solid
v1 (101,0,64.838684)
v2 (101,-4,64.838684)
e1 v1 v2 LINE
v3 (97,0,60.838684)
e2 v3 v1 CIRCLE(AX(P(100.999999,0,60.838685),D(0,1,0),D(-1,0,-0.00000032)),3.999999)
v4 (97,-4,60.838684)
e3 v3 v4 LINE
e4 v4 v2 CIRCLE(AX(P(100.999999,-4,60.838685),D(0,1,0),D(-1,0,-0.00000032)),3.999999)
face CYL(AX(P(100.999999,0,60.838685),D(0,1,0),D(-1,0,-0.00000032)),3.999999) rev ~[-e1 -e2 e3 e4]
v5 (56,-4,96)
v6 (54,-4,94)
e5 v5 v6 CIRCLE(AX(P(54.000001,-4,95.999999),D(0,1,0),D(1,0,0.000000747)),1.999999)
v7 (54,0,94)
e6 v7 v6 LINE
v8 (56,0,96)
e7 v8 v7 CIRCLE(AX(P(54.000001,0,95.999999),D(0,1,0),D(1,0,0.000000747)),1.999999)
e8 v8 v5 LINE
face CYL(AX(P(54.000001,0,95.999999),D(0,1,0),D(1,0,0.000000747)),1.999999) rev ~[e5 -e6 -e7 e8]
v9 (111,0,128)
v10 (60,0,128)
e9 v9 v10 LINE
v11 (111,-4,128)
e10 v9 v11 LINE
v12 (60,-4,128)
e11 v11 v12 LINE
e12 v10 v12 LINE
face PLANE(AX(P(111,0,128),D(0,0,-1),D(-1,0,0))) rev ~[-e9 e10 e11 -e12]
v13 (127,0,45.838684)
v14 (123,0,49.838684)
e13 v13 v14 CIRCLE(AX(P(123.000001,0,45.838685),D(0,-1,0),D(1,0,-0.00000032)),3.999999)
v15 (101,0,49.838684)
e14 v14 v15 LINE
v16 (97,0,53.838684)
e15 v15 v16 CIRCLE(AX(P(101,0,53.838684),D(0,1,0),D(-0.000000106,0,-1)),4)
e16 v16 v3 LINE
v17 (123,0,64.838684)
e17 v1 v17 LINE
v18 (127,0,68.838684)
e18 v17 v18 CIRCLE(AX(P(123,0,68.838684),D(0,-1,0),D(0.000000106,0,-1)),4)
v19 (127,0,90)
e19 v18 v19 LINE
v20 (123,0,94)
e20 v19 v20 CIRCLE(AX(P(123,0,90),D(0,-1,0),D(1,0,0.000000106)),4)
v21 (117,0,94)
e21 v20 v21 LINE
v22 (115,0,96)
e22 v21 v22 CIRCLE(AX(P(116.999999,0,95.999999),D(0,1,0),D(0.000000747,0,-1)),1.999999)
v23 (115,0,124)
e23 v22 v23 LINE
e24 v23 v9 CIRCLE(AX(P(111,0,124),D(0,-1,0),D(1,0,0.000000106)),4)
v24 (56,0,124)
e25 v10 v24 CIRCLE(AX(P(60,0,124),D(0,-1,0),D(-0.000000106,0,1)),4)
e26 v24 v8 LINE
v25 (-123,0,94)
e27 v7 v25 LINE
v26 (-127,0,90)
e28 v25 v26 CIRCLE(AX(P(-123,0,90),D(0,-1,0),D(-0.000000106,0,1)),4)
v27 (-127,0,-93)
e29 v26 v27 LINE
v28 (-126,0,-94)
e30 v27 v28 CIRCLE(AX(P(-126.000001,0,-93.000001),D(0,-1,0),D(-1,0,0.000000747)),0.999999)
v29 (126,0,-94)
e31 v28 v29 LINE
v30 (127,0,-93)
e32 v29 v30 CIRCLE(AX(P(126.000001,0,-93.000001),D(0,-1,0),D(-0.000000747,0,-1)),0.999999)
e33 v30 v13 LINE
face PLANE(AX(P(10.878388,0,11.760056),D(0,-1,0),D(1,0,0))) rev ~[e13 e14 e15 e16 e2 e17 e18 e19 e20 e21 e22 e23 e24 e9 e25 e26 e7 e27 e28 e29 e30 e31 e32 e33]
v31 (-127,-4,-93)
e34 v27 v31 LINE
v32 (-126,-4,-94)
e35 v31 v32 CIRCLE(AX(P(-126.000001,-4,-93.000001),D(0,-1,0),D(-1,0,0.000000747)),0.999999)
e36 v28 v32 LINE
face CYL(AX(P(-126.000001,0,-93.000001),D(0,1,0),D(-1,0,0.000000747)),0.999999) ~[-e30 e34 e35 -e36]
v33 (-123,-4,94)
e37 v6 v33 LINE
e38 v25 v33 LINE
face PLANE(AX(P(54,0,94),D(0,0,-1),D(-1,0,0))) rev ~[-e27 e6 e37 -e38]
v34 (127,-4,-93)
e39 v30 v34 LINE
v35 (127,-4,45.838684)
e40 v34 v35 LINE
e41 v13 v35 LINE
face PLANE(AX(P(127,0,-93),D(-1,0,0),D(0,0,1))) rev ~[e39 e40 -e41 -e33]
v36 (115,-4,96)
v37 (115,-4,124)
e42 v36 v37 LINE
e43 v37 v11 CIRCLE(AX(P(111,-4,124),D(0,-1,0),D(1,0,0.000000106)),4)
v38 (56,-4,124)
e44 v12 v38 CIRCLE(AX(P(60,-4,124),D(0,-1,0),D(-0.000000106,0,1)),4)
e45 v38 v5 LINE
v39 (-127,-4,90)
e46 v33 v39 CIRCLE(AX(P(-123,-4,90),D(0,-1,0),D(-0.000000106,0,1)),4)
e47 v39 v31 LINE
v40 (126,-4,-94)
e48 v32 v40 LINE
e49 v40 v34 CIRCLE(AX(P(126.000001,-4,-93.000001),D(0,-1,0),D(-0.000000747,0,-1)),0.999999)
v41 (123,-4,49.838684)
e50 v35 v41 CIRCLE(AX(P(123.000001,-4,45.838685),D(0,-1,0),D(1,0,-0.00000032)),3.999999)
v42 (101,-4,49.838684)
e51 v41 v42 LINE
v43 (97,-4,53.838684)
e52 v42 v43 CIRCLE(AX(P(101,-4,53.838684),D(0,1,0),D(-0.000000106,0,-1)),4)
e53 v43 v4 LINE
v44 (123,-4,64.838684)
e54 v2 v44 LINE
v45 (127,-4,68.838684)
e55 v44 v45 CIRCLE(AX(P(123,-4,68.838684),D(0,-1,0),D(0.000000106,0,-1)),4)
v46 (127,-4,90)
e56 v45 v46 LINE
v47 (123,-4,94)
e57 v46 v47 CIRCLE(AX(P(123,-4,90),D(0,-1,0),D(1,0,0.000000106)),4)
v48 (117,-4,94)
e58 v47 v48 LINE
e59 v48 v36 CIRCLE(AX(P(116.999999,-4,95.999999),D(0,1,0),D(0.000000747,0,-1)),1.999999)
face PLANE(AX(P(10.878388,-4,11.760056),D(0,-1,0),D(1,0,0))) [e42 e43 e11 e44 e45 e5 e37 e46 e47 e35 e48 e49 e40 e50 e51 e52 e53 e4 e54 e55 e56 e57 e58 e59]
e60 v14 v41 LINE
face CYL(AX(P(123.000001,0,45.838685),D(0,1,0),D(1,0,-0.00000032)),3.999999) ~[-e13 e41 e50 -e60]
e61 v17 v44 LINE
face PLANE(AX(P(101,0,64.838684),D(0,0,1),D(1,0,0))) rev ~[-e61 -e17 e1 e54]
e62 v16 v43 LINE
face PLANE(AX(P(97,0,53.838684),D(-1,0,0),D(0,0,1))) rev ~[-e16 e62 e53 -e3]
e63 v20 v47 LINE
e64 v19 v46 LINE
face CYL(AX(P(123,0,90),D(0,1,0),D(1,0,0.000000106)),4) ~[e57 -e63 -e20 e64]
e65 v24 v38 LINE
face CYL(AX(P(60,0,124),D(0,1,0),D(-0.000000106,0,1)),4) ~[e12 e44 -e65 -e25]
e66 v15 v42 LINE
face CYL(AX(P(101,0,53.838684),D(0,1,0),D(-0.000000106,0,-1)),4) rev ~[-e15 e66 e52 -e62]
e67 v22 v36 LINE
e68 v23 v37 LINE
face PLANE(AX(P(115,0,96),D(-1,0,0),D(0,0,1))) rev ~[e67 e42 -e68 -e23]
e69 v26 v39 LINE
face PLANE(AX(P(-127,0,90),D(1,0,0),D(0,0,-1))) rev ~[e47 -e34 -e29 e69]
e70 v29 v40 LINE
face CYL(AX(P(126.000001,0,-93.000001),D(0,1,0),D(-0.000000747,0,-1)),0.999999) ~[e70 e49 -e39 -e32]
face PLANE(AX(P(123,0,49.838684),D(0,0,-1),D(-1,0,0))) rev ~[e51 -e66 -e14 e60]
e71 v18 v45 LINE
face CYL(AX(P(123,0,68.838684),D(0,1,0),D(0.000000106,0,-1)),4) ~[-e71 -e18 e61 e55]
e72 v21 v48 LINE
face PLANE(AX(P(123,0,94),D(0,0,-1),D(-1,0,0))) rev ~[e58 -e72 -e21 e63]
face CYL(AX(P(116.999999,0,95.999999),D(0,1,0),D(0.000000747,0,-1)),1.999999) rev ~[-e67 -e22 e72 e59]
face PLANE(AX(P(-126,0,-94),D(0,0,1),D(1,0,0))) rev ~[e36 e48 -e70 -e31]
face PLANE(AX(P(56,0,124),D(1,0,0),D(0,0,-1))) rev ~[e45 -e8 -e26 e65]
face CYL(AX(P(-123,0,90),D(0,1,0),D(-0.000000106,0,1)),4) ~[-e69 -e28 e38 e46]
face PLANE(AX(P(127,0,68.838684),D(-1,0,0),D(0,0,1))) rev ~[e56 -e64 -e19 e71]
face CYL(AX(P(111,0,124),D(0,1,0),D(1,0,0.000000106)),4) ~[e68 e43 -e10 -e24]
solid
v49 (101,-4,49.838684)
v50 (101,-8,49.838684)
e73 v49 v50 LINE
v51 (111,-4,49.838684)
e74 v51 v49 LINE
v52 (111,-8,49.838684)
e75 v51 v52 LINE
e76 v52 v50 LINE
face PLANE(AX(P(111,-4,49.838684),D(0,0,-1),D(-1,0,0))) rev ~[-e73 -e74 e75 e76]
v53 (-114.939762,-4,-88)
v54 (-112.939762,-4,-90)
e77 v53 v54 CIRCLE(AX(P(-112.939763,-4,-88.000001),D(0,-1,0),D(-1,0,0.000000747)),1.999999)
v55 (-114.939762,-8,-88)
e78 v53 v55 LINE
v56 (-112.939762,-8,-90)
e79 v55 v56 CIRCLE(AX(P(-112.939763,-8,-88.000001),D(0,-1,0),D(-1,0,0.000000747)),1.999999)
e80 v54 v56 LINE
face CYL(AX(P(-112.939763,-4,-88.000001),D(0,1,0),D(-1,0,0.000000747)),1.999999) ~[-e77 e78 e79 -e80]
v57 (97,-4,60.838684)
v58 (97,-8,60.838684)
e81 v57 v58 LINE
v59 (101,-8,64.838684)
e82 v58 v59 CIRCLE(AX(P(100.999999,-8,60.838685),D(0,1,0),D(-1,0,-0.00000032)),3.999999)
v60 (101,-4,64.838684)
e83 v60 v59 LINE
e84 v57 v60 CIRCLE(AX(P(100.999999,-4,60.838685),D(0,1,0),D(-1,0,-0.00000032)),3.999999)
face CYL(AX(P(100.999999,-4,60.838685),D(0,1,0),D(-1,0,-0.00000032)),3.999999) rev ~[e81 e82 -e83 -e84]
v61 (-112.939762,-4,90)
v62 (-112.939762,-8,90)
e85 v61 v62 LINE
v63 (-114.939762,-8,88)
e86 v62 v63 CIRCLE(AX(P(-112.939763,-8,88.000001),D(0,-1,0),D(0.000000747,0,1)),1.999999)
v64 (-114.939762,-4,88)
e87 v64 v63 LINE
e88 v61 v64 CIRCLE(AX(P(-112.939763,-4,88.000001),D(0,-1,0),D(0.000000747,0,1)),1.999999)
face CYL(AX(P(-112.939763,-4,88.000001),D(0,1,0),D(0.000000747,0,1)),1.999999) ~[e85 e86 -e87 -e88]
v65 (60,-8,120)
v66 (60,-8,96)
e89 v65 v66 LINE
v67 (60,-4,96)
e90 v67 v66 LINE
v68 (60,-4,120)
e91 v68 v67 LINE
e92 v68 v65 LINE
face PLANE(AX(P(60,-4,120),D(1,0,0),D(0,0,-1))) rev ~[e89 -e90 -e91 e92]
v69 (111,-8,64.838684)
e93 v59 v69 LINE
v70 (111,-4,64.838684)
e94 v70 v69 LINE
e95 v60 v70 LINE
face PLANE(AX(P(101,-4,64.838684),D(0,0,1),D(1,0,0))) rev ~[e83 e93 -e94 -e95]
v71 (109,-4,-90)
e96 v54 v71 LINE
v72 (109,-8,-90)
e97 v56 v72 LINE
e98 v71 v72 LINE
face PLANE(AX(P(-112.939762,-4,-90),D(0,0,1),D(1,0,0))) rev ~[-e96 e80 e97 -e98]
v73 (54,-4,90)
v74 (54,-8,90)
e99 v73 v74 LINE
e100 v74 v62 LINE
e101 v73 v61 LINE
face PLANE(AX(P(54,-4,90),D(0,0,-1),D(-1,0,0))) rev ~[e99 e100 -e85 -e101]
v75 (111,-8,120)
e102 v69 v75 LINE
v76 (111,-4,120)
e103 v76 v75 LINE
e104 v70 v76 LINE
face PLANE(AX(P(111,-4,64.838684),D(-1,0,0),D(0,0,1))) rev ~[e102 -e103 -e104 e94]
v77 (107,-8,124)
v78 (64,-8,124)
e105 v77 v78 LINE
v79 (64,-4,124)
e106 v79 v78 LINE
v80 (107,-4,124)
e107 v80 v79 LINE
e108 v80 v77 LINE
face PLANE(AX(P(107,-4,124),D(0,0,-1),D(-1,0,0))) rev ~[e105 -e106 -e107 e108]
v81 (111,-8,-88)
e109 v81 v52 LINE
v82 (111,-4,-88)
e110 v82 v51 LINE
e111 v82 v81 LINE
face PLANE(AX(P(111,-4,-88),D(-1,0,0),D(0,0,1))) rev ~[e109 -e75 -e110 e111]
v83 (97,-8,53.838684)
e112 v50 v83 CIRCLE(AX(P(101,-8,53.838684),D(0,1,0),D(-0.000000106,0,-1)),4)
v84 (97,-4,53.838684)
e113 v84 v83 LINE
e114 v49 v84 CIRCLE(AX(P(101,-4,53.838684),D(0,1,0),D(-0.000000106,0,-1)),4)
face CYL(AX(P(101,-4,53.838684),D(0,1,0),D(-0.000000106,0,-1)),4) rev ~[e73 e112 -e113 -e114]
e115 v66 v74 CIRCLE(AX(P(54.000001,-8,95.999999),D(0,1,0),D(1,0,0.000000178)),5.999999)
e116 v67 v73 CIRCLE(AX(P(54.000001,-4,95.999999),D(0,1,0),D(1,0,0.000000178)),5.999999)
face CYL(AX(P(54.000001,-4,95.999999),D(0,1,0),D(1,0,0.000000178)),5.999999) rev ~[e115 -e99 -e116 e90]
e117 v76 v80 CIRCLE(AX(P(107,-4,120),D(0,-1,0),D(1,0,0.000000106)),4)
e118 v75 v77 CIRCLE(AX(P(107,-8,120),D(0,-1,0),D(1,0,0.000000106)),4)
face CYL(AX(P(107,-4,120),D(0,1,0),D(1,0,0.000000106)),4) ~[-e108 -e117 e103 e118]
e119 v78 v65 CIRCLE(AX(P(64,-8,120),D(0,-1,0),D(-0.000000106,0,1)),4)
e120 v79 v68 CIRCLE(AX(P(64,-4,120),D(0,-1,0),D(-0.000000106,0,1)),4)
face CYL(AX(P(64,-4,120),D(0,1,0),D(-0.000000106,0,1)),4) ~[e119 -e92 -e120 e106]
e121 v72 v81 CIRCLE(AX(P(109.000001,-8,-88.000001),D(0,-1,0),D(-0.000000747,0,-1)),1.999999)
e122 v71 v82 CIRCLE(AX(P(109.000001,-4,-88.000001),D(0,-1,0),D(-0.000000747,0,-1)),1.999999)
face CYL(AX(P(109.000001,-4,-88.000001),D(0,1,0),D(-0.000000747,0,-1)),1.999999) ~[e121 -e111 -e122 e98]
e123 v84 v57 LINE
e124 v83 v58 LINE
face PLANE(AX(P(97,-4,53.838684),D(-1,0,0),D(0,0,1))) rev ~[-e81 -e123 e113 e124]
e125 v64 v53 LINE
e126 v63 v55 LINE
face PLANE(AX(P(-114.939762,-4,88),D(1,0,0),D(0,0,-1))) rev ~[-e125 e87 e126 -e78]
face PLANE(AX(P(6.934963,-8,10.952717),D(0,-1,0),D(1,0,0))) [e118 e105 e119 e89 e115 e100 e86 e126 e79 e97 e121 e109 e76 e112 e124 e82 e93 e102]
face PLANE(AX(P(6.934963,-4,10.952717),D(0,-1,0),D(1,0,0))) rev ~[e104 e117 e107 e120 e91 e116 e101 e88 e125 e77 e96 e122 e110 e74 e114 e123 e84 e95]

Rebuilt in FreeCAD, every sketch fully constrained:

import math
import FreeCAD as App
import Part
import Sketcher
from FreeCAD import Vector

doc = App.newDocument("Part")
params = doc.addObject("Spreadsheet::Sheet", "Params")
for row, (alias, value) in enumerate([
    ("sketch1_radius", "4 mm"),
    ("sketch1_radius2", "1.999999 mm"),
    ("sketch1_radius3", "0.999999 mm"),
    ("sketch1_width", "6 mm"),
    ("sketch1_width2", "51 mm"),
    ("pad1_length", "4 mm"),
    ("sketch2_radius", "5.999999 mm"),
    ("sketch2_radius2", "1.999999 mm"),
    ("sketch2_radius3", "4 mm"),
    ("sketch2_width", "10 mm"),
    ("sketch2_width2", "43 mm"),
    ("pad2_length", "4 mm"),
], start=1):
    params.set(f"A{row}", alias)
    params.set(f"B{row}", "=" + value)
    params.setAlias(f"B{row}", alias)

body = doc.addObject("PartDesign::Body", "Body")

# Sketch on XZ plane
sketch1 = doc.addObject("Sketcher::SketchObject", "Sketch")
body.addObject(sketch1)
sketch1.AttachmentSupport = (doc.XZ_Plane, [""])
sketch1.MapMode = "FlatFace"
sketch1.addGeometry([
    Part.ArcOfCircle(Part.Circle(Vector(123, 90, 0), Vector(0, 0, 1), 4), math.radians(0), math.radians(90)),  # 0
    Part.LineSegment(Vector(123, 94, 0), Vector(117, 94, 0)),  # 1
    Part.ArcOfCircle(Part.Circle(Vector(117, 96, 0), Vector(0, 0, 1), 2), math.radians(180), math.radians(270)),  # 2
    Part.LineSegment(Vector(115, 96, 0), Vector(115, 124, 0)),  # 3
    Part.ArcOfCircle(Part.Circle(Vector(111, 124, 0), Vector(0, 0, 1), 4), math.radians(0), math.radians(90)),  # 4
    Part.LineSegment(Vector(111, 128, 0), Vector(60, 128, 0)),  # 5
    Part.ArcOfCircle(Part.Circle(Vector(60, 124, 0), Vector(0, 0, 1), 4), math.radians(90), math.radians(180)),  # 6
    Part.LineSegment(Vector(56, 124, 0), Vector(56, 96, 0)),  # 7
    Part.ArcOfCircle(Part.Circle(Vector(54, 96, 0), Vector(0, 0, 1), 2), math.radians(-90), math.radians(0)),  # 8
    Part.LineSegment(Vector(54, 94, 0), Vector(-123, 94, 0)),  # 9
    Part.ArcOfCircle(Part.Circle(Vector(-123, 90, 0), Vector(0, 0, 1), 4), math.radians(90), math.radians(180)),  # 10
    Part.LineSegment(Vector(-127, 90, 0), Vector(-127, -93, 0)),  # 11
    Part.ArcOfCircle(Part.Circle(Vector(-126, -93, 0), Vector(0, 0, 1), 1), math.radians(180), math.radians(270)),  # 12
    Part.LineSegment(Vector(-126, -94, 0), Vector(126, -94, 0)),  # 13
    Part.ArcOfCircle(Part.Circle(Vector(126, -93, 0), Vector(0, 0, 1), 1), math.radians(-90), math.radians(0)),  # 14
    Part.LineSegment(Vector(127, -93, 0), Vector(127, 45.8, 0)),  # 15
    Part.ArcOfCircle(Part.Circle(Vector(123, 45.8, 0), Vector(0, 0, 1), 4), math.radians(0), math.radians(90)),  # 16
    Part.LineSegment(Vector(123, 49.8, 0), Vector(101, 49.8, 0)),  # 17
    Part.ArcOfCircle(Part.Circle(Vector(101, 53.8, 0), Vector(0, 0, 1), 4), math.radians(-180), math.radians(-90)),  # 18
    Part.LineSegment(Vector(97, 53.8, 0), Vector(97, 60.8, 0)),  # 19
    Part.ArcOfCircle(Part.Circle(Vector(101, 60.8, 0), Vector(0, 0, 1), 4), math.radians(90), math.radians(180)),  # 20
    Part.LineSegment(Vector(101, 64.8, 0), Vector(123, 64.8, 0)),  # 21
    Part.ArcOfCircle(Part.Circle(Vector(123, 68.8, 0), Vector(0, 0, 1), 4), math.radians(-90), math.radians(0)),  # 22
    Part.LineSegment(Vector(127, 68.8, 0), Vector(127, 90, 0)),  # 23
], False)
sketch1.addConstraint([
    Sketcher.Constraint("Tangent", 0, 2, 1, 1),
    Sketcher.Constraint("Tangent", 1, 2, 2, 2),
    Sketcher.Constraint("Tangent", 2, 1, 3, 1),
    Sketcher.Constraint("Tangent", 3, 2, 4, 1),
    Sketcher.Constraint("Tangent", 4, 2, 5, 1),
    Sketcher.Constraint("Tangent", 5, 2, 6, 1),
    Sketcher.Constraint("Tangent", 6, 2, 7, 1),
    Sketcher.Constraint("Tangent", 7, 2, 8, 2),
    Sketcher.Constraint("Tangent", 8, 1, 9, 1),
    Sketcher.Constraint("Tangent", 9, 2, 10, 1),
    Sketcher.Constraint("Tangent", 10, 2, 11, 1),
    Sketcher.Constraint("Tangent", 11, 2, 12, 1),
    Sketcher.Constraint("Tangent", 12, 2, 13, 1),
    Sketcher.Constraint("Tangent", 13, 2, 14, 1),
    Sketcher.Constraint("Tangent", 14, 2, 15, 1),
    Sketcher.Constraint("Tangent", 15, 2, 16, 1),
    Sketcher.Constraint("Tangent", 16, 2, 17, 1),
    Sketcher.Constraint("Tangent", 17, 2, 18, 2),
    Sketcher.Constraint("Tangent", 18, 1, 19, 1),
    Sketcher.Constraint("Tangent", 19, 2, 20, 2),
    Sketcher.Constraint("Tangent", 20, 1, 21, 1),
    Sketcher.Constraint("Tangent", 21, 2, 22, 1),
    Sketcher.Constraint("Tangent", 22, 2, 23, 1),
    Sketcher.Constraint("Tangent", 23, 2, 0, 1),
    Sketcher.Constraint("Horizontal", 1),
    Sketcher.Constraint("Vertical", 3),
    Sketcher.Constraint("Horizontal", 5),
    Sketcher.Constraint("Vertical", 7),
    Sketcher.Constraint("Horizontal", 9),
    Sketcher.Constraint("Vertical", 11),
    Sketcher.Constraint("Horizontal", 13),
    Sketcher.Constraint("Vertical", 15),
    Sketcher.Constraint("Horizontal", 17),
    Sketcher.Constraint("Vertical", 19),
    Sketcher.Constraint("Horizontal", 21),
    Sketcher.Constraint("Vertical", 23),
    Sketcher.Constraint("Equal", 0, 4),
    Sketcher.Constraint("Equal", 4, 6),
    Sketcher.Constraint("Equal", 2, 8),
    Sketcher.Constraint("Equal", 6, 10),
    Sketcher.Constraint("Equal", 12, 14),
    Sketcher.Constraint("Equal", 10, 16),
    Sketcher.Constraint("Equal", 16, 18),
    Sketcher.Constraint("Equal", 18, 20),
    Sketcher.Constraint("Equal", 20, 22),
    Sketcher.Constraint("Symmetric", 0, 3, 10, 3, -2),
    Sketcher.Constraint("Vertical", 0, 3, 16, 3),
    Sketcher.Constraint("Radius", 0, 4.0),
    Sketcher.Constraint("Radius", 2, 1.999999),
    Sketcher.Constraint("Radius", 12, 0.999999),
    Sketcher.Constraint("DistanceX", 1, 2, 1, 1, 6.0),
    Sketcher.Constraint("DistanceX", 5, 2, 5, 1, 51.0),
    Sketcher.Constraint("DistanceX", 9, 2, 9, 1, 177.0),
    Sketcher.Constraint("DistanceX", 17, 2, 17, 1, 22.0),
    Sketcher.Constraint("DistanceY", 3, 1, 3, 2, 28.0),
    Sketcher.Constraint("DistanceY", 11, 2, 11, 1, 183.0),
    Sketcher.Constraint("DistanceY", 19, 1, 19, 2, 7.0),
    Sketcher.Constraint("DistanceY", -1, 1, 0, 3, 90.0),
    Sketcher.Constraint("DistanceY", 15, 1, 15, 2, 138.838684),
])
sketch1.setExpression("Constraints[47]", "Params.sketch1_radius")
sketch1.setExpression("Constraints[48]", "Params.sketch1_radius2")
sketch1.setExpression("Constraints[49]", "Params.sketch1_radius3")
sketch1.setExpression("Constraints[50]", "Params.sketch1_width")
sketch1.setExpression("Constraints[51]", "Params.sketch1_width2")
pad1 = doc.addObject("PartDesign::Pad", "Pad")
body.addObject(pad1)
pad1.Profile = sketch1
pad1.setExpression("Length", "Params.pad1_length")
body2 = doc.addObject("PartDesign::Body", "Body001")

# Sketch on XZ plane
sketch2 = doc.addObject("Sketcher::SketchObject", "Sketch001")
body2.addObject(sketch2)
sketch2.AttachmentSupport = (doc.getObject("XZ_Plane001"), [""])
sketch2.MapMode = "FlatFace"
sketch2.AttachmentOffset = App.Placement(Vector(0, 0, 4), App.Rotation())
sketch2.addGeometry([
    Part.ArcOfCircle(Part.Circle(Vector(54, 96, 0), Vector(0, 0, 1), 6), math.radians(-90), math.radians(0)),  # 0
    Part.LineSegment(Vector(54, 90, 0), Vector(-112.9, 90, 0)),  # 1
    Part.ArcOfCircle(Part.Circle(Vector(-112.9, 88, 0), Vector(0, 0, 1), 2), math.radians(90), math.radians(180)),  # 2
    Part.LineSegment(Vector(-114.9, 88, 0), Vector(-114.9, -88, 0)),  # 3
    Part.ArcOfCircle(Part.Circle(Vector(-112.9, -88, 0), Vector(0, 0, 1), 2), math.radians(180), math.radians(270)),  # 4
    Part.LineSegment(Vector(-112.9, -90, 0), Vector(109, -90, 0)),  # 5
    Part.ArcOfCircle(Part.Circle(Vector(109, -88, 0), Vector(0, 0, 1), 2), math.radians(-90), math.radians(0)),  # 6
    Part.LineSegment(Vector(111, -88, 0), Vector(111, 49.8, 0)),  # 7
    Part.LineSegment(Vector(111, 49.8, 0), Vector(101, 49.8, 0)),  # 8
    Part.ArcOfCircle(Part.Circle(Vector(101, 53.8, 0), Vector(0, 0, 1), 4), math.radians(-180), math.radians(-90)),  # 9
    Part.LineSegment(Vector(97, 53.8, 0), Vector(97, 60.8, 0)),  # 10
    Part.ArcOfCircle(Part.Circle(Vector(101, 60.8, 0), Vector(0, 0, 1), 4), math.radians(90), math.radians(180)),  # 11
    Part.LineSegment(Vector(101, 64.8, 0), Vector(111, 64.8, 0)),  # 12
    Part.LineSegment(Vector(111, 64.8, 0), Vector(111, 120, 0)),  # 13
    Part.ArcOfCircle(Part.Circle(Vector(107, 120, 0), Vector(0, 0, 1), 4), math.radians(0), math.radians(90)),  # 14
    Part.LineSegment(Vector(107, 124, 0), Vector(64, 124, 0)),  # 15
    Part.ArcOfCircle(Part.Circle(Vector(64, 120, 0), Vector(0, 0, 1), 4), math.radians(90), math.radians(180)),  # 16
    Part.LineSegment(Vector(60, 120, 0), Vector(60, 96, 0)),  # 17
], False)
sketch2.addConstraint([
    Sketcher.Constraint("Tangent", 0, 1, 1, 1),
    Sketcher.Constraint("Tangent", 1, 2, 2, 1),
    Sketcher.Constraint("Tangent", 2, 2, 3, 1),
    Sketcher.Constraint("Tangent", 3, 2, 4, 1),
    Sketcher.Constraint("Tangent", 4, 2, 5, 1),
    Sketcher.Constraint("Tangent", 5, 2, 6, 1),
    Sketcher.Constraint("Tangent", 6, 2, 7, 1),
    Sketcher.Constraint("Coincident", 7, 2, 8, 1),
    Sketcher.Constraint("Tangent", 8, 2, 9, 2),
    Sketcher.Constraint("Tangent", 9, 1, 10, 1),
    Sketcher.Constraint("Tangent", 10, 2, 11, 2),
    Sketcher.Constraint("Tangent", 11, 1, 12, 1),
    Sketcher.Constraint("Coincident", 12, 2, 13, 1),
    Sketcher.Constraint("Tangent", 13, 2, 14, 1),
    Sketcher.Constraint("Tangent", 14, 2, 15, 1),
    Sketcher.Constraint("Tangent", 15, 2, 16, 1),
    Sketcher.Constraint("Tangent", 16, 2, 17, 1),
    Sketcher.Constraint("Tangent", 17, 2, 0, 2),
    Sketcher.Constraint("Horizontal", 1),
    Sketcher.Constraint("Vertical", 3),
    Sketcher.Constraint("Horizontal", 5),
    Sketcher.Constraint("Vertical", 7),
    Sketcher.Constraint("Horizontal", 8),
    Sketcher.Constraint("Vertical", 10),
    Sketcher.Constraint("Horizontal", 12),
    Sketcher.Constraint("Vertical", 13),
    Sketcher.Constraint("Horizontal", 15),
    Sketcher.Constraint("Vertical", 17),
    Sketcher.Constraint("Equal", 2, 4),
    Sketcher.Constraint("Equal", 4, 6),
    Sketcher.Constraint("Equal", 9, 11),
    Sketcher.Constraint("Equal", 11, 14),
    Sketcher.Constraint("Equal", 14, 16),
    Sketcher.Constraint("Vertical", 7, 2, 12, 2),
    Sketcher.Constraint("Radius", 0, 5.999999),
    Sketcher.Constraint("Radius", 2, 1.999999),
    Sketcher.Constraint("Radius", 9, 4.0),
    Sketcher.Constraint("DistanceX", 8, 2, 8, 1, 10.0),
    Sketcher.Constraint("DistanceX", 15, 2, 15, 1, 43.0),
    Sketcher.Constraint("DistanceY", 3, 2, 3, 1, 176.0),
    Sketcher.Constraint("DistanceY", 10, 1, 10, 2, 7.0),
    Sketcher.Constraint("DistanceY", 17, 2, 17, 1, 24.0),
    Sketcher.Constraint("DistanceX", -1, 1, 0, 3, 54.000001),
    Sketcher.Constraint("DistanceY", -1, 1, 0, 3, 95.999999),
    Sketcher.Constraint("DistanceX", 1, 2, 1, 1, 166.939762),
    Sketcher.Constraint("DistanceY", 7, 1, 7, 2, 137.838684),
])
sketch2.setExpression("Constraints[34]", "Params.sketch2_radius")
sketch2.setExpression("Constraints[35]", "Params.sketch2_radius2")
sketch2.setExpression("Constraints[36]", "Params.sketch2_radius3")
sketch2.setExpression("Constraints[37]", "Params.sketch2_width")
sketch2.setExpression("Constraints[38]", "Params.sketch2_width2")
pad2 = doc.addObject("PartDesign::Pad", "Pad001")
body2.addObject(pad2)
pad2.Profile = sketch2
pad2.setExpression("Length", "Params.pad2_length")

doc.recompute()
